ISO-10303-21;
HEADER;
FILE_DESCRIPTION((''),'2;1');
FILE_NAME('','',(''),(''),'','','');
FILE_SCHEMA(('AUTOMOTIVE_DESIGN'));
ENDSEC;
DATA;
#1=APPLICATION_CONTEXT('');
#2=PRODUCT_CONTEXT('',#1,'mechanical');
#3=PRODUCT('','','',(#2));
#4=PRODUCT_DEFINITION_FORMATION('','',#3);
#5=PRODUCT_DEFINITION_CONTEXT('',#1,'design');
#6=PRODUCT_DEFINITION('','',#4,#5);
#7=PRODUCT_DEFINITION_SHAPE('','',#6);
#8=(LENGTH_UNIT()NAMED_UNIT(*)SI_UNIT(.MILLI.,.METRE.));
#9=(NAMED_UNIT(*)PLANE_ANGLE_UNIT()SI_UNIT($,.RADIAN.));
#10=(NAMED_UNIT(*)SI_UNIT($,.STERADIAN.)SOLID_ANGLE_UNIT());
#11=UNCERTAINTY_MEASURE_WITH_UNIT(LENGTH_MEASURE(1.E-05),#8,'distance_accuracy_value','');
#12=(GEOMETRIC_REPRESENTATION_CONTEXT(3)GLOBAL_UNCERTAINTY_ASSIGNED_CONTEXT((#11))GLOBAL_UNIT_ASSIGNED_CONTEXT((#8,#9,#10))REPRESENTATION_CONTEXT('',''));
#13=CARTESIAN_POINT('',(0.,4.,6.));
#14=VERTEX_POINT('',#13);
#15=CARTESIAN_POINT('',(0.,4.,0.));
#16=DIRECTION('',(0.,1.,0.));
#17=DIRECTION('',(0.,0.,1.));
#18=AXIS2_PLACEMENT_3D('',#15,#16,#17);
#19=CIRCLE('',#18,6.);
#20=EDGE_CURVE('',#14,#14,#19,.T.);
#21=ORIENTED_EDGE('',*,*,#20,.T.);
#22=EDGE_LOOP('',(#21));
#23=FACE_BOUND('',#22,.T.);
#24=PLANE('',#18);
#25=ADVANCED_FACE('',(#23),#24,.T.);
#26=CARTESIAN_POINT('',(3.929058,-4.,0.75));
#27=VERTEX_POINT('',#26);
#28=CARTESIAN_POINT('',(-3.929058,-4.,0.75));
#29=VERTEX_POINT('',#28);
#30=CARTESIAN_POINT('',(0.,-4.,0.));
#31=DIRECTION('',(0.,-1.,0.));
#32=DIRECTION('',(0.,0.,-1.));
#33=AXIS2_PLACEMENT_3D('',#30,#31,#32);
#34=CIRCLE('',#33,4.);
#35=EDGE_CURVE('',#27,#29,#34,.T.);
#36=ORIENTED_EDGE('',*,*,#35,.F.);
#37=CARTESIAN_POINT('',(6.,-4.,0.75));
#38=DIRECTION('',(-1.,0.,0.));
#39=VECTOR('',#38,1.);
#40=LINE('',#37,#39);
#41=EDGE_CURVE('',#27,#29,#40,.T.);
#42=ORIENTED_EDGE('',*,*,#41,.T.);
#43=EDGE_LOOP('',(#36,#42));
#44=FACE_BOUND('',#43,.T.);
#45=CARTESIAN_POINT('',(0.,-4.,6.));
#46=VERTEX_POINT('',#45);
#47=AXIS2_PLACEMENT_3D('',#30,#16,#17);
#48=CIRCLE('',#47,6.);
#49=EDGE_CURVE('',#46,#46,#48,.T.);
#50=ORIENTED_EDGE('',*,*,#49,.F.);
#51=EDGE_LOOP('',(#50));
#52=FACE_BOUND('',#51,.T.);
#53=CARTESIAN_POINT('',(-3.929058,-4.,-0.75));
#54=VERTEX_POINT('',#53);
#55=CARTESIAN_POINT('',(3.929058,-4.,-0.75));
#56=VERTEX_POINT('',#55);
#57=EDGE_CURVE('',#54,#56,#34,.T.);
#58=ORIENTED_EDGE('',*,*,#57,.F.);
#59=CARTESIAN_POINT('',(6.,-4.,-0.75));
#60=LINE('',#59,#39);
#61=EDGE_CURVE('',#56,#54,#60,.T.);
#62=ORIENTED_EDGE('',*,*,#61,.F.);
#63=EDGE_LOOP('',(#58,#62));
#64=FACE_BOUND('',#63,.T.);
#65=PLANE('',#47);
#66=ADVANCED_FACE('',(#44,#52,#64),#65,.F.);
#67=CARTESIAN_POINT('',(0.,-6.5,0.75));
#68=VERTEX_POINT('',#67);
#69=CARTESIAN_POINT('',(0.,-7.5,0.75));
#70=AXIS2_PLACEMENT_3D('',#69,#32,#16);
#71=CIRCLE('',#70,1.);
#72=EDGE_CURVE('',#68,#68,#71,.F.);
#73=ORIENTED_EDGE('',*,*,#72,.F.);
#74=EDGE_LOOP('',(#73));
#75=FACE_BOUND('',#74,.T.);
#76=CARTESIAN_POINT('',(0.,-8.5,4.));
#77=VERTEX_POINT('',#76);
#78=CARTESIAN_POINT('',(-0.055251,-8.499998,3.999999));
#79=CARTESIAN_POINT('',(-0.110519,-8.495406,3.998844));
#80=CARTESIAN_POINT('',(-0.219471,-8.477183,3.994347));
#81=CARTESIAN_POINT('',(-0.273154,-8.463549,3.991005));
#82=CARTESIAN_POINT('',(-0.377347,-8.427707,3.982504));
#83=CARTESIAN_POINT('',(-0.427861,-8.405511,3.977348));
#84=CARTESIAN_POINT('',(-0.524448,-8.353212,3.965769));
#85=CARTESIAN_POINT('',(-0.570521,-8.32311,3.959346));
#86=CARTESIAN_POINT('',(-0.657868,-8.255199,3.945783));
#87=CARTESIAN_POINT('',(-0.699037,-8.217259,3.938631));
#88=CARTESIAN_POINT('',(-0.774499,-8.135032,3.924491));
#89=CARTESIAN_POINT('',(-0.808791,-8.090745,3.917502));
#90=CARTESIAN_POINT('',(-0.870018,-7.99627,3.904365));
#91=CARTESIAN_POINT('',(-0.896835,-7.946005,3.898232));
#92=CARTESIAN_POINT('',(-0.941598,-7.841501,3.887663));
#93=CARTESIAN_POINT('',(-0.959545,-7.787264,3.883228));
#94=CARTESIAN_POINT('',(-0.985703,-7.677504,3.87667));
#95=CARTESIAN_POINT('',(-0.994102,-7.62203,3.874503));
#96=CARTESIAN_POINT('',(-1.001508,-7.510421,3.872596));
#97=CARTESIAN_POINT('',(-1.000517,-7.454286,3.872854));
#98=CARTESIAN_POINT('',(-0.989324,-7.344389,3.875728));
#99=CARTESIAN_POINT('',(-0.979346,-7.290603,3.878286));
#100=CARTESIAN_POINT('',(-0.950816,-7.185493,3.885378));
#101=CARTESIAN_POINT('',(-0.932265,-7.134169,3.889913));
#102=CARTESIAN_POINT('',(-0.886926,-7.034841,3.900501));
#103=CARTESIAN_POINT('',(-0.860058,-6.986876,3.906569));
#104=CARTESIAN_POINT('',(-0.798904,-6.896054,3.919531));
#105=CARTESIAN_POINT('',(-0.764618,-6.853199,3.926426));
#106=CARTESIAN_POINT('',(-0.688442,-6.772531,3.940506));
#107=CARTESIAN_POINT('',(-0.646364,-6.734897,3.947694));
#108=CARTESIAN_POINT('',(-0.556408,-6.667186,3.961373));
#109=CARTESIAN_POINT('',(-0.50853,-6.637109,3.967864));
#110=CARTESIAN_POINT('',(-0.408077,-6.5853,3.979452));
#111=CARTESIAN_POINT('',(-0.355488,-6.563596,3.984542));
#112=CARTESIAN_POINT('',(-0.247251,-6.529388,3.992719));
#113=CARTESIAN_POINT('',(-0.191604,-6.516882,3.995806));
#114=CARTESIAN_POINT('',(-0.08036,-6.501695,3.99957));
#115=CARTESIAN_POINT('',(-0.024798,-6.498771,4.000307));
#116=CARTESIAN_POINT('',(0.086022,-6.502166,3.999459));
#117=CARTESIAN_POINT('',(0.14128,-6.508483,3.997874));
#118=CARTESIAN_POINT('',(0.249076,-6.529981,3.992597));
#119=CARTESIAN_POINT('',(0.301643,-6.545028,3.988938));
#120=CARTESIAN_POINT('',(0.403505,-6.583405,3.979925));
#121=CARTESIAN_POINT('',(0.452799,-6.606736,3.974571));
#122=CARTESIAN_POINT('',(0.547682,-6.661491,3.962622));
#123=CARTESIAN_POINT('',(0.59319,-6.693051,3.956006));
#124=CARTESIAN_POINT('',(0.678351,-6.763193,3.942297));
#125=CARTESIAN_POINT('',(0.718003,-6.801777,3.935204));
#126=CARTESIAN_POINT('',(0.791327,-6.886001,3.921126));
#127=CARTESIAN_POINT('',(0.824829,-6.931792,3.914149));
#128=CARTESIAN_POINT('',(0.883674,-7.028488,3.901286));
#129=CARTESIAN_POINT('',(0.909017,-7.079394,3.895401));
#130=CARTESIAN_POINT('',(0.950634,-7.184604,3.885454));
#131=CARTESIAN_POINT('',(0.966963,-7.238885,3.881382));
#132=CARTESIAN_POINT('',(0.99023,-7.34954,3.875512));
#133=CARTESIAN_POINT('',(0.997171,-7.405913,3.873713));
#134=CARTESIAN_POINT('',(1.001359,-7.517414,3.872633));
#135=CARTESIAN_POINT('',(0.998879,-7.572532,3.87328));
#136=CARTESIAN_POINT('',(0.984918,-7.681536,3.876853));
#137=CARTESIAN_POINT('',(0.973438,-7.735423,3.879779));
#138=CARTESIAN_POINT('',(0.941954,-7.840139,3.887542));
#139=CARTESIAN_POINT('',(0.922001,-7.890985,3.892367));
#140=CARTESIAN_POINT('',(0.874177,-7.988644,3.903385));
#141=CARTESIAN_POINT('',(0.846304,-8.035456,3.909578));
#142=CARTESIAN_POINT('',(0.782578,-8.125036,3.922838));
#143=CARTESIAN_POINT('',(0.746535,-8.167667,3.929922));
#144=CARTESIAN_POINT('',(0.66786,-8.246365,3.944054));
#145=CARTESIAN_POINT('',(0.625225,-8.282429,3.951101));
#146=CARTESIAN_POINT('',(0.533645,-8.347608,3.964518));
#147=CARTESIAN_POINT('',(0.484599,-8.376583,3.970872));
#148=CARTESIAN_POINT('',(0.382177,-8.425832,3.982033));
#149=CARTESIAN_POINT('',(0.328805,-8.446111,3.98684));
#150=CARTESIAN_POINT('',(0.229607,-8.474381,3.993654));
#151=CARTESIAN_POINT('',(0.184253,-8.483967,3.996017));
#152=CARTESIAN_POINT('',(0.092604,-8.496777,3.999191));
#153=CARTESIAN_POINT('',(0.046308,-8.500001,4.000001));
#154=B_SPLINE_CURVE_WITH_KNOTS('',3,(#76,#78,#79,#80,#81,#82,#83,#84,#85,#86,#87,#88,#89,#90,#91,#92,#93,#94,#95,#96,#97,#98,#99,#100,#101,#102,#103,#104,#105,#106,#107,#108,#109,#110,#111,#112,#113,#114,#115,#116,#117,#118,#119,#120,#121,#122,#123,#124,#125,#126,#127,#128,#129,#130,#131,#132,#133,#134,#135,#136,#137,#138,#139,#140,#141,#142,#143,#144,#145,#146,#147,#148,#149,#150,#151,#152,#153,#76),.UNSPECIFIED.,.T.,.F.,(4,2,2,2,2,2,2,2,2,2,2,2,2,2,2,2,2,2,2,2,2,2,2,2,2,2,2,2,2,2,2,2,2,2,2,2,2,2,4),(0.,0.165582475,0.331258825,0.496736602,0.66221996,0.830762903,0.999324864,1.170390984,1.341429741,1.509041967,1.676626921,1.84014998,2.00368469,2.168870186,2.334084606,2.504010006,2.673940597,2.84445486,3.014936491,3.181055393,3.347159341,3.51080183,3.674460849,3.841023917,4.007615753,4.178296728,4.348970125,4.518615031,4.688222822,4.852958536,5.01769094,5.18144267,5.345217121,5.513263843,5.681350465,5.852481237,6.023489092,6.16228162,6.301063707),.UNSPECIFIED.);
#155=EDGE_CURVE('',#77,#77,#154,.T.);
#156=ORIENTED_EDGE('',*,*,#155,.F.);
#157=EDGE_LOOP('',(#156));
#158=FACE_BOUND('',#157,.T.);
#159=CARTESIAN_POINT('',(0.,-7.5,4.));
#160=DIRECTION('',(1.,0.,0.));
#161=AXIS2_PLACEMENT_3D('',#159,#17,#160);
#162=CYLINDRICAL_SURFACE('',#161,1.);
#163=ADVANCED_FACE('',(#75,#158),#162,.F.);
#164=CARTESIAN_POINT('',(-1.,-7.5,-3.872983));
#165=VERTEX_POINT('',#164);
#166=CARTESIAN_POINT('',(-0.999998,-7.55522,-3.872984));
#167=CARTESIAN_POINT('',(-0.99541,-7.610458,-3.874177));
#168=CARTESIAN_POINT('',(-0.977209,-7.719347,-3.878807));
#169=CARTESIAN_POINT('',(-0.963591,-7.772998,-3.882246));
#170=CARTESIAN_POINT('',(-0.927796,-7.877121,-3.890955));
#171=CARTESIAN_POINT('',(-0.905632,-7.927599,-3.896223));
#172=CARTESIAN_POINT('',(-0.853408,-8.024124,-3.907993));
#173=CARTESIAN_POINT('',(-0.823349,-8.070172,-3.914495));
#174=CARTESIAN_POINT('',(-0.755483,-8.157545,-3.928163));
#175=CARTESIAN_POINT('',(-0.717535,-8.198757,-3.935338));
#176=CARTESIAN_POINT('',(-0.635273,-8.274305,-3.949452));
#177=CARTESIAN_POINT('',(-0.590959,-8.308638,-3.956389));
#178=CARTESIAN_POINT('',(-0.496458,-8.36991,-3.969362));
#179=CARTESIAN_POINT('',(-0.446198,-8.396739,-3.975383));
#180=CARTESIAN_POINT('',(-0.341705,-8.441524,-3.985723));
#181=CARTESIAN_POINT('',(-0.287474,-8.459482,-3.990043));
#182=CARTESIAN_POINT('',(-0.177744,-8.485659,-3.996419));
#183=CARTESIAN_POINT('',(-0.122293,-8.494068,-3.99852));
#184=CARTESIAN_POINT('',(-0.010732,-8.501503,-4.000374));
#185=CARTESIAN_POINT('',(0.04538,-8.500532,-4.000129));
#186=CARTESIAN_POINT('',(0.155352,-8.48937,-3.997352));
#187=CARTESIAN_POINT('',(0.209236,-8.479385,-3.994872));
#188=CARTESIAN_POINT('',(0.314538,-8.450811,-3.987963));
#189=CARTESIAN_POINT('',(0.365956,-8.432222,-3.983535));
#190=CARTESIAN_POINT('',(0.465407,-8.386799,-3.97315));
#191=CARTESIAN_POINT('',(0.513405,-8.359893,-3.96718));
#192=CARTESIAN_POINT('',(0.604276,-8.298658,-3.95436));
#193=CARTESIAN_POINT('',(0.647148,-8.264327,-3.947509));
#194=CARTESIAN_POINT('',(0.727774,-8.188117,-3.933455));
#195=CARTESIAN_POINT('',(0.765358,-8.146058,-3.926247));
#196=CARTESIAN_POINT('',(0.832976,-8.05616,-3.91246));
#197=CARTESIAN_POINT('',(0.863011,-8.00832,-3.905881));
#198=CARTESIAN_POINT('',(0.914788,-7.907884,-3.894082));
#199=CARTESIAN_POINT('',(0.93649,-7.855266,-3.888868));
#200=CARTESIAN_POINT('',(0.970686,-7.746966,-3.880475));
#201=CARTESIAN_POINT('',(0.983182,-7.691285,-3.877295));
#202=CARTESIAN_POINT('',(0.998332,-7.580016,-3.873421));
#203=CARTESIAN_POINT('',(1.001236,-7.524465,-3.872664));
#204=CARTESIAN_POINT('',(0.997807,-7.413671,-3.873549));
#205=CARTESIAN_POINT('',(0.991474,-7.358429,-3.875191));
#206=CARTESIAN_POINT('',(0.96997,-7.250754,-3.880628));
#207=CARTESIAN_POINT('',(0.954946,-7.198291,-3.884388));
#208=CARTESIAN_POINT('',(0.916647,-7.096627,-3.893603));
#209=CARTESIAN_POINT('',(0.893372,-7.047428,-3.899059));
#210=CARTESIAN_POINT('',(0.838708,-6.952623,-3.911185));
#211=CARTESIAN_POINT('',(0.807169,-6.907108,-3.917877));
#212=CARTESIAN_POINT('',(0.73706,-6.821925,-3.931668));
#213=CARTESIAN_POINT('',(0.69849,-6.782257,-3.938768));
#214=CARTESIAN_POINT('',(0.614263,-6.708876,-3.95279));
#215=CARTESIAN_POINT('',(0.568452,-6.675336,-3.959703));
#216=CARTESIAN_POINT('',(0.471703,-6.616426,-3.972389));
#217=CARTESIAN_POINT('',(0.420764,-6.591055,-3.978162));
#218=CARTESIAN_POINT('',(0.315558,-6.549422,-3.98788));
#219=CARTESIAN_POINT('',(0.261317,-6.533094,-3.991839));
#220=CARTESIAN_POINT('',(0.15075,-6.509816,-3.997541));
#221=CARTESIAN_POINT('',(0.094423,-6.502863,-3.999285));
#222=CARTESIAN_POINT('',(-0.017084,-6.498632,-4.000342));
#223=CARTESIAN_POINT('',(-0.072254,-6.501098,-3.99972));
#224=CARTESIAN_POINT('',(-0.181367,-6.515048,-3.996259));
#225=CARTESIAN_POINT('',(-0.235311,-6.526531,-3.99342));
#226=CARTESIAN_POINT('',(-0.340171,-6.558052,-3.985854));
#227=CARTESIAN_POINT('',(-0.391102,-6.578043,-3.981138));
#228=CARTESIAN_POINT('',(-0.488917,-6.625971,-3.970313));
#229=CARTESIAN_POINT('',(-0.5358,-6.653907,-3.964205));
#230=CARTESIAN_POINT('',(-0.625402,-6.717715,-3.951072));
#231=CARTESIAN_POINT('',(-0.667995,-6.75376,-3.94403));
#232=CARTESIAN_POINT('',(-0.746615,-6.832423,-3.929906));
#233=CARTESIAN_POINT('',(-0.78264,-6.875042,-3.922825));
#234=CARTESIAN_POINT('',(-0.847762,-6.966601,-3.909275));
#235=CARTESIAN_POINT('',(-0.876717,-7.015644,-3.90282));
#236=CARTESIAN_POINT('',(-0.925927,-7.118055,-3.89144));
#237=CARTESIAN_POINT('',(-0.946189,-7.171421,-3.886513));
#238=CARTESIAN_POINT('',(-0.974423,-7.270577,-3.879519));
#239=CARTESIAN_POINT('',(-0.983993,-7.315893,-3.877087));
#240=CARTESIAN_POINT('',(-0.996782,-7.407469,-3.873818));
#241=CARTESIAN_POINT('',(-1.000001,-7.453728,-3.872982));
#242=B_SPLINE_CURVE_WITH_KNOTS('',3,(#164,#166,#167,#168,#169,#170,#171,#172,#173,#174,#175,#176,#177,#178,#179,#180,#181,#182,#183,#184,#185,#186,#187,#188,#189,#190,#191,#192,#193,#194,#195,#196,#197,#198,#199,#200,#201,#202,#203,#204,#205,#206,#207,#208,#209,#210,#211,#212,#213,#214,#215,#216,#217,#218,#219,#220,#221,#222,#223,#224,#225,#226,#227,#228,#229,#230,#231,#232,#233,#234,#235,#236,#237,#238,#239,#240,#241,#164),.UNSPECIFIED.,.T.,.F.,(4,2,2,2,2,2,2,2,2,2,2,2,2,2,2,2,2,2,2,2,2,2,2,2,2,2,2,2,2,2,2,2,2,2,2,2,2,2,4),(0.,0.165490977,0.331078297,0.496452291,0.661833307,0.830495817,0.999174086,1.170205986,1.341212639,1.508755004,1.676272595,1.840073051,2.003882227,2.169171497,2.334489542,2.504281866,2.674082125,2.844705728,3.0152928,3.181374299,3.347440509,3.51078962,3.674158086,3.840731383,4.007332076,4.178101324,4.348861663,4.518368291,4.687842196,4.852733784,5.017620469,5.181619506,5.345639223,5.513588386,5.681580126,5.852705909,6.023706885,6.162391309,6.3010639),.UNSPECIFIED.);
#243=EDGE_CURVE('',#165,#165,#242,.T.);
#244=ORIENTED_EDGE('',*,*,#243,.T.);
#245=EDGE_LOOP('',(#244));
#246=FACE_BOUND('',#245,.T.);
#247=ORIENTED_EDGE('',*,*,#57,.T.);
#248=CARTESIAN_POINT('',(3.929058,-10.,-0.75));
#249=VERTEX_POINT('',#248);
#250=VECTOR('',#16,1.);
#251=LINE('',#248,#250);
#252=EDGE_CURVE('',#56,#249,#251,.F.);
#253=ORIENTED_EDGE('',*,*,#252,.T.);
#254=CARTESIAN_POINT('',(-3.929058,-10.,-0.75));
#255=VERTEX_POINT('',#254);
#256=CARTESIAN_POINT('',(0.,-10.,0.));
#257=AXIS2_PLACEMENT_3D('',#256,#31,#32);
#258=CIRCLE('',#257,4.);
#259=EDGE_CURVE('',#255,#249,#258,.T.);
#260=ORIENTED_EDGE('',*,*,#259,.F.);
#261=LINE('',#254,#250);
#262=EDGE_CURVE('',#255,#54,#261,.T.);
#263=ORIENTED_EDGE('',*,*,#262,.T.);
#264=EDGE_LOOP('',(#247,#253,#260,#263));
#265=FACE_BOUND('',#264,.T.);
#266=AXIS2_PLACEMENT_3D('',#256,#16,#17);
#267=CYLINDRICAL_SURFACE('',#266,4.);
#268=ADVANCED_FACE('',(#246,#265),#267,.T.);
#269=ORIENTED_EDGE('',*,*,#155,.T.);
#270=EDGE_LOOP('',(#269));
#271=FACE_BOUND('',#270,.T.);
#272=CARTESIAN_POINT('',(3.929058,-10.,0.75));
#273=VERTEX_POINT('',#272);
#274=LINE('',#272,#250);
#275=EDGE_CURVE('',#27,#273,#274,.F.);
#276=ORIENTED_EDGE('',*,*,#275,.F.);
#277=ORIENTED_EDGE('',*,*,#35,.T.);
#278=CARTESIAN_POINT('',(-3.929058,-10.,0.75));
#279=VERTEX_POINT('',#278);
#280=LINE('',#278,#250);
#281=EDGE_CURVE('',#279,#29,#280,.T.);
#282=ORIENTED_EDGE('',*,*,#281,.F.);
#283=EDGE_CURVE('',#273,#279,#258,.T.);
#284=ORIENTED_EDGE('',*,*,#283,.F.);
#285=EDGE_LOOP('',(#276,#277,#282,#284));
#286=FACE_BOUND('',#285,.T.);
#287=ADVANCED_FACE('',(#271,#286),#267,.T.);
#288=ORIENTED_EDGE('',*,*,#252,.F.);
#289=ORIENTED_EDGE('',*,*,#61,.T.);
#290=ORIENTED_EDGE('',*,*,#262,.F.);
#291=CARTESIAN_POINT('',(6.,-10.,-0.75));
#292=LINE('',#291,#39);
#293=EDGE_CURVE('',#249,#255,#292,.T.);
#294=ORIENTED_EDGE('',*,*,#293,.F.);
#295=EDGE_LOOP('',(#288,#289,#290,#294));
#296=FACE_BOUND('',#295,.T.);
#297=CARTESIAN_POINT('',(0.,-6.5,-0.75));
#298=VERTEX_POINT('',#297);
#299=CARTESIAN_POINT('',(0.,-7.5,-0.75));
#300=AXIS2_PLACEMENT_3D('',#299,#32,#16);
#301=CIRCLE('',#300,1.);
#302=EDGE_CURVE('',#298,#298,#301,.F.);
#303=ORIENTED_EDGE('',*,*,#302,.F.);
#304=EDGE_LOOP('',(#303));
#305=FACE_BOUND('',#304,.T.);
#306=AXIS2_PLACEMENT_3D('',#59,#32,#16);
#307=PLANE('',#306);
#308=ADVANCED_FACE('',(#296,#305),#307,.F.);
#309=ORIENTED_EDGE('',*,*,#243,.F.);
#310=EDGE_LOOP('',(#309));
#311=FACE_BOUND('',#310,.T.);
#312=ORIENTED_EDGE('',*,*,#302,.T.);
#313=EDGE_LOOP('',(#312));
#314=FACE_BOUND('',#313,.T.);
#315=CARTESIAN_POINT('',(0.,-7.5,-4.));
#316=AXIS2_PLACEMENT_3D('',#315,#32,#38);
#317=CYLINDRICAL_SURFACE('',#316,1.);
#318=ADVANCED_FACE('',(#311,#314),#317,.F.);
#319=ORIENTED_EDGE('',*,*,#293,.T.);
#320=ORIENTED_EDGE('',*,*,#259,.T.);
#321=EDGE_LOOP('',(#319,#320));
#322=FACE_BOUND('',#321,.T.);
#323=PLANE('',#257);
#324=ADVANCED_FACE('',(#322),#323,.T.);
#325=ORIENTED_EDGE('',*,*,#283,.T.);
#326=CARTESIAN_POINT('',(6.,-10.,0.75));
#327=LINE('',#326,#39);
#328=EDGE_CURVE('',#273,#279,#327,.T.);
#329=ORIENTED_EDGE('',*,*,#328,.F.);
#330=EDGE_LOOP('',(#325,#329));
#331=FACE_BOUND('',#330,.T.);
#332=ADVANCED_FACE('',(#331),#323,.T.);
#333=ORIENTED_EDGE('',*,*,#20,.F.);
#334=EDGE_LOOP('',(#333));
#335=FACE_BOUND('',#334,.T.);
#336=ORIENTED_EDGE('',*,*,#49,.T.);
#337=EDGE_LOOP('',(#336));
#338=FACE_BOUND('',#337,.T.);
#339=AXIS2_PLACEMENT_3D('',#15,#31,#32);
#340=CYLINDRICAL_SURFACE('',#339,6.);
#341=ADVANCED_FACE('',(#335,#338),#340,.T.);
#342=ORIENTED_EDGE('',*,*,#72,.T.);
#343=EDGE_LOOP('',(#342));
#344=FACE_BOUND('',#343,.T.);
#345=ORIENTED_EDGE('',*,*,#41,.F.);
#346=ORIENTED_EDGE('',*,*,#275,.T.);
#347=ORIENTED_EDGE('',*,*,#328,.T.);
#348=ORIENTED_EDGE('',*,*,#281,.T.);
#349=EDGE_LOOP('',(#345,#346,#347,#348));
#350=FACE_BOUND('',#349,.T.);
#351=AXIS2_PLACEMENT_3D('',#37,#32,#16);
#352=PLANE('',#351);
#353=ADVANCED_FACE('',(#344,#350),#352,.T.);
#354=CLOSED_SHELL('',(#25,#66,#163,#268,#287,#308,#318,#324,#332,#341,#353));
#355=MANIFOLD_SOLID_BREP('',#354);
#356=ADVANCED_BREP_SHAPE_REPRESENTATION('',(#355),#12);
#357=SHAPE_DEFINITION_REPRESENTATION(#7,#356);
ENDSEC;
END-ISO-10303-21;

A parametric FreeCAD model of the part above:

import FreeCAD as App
import Part
import Sketcher

doc = App.newDocument("Part")
params = doc.addObject("Spreadsheet::Sheet", "Params")
for row, (alias, value) in enumerate([
    ("sketch1_diameter", "12 mm"),
    ("pad1_length", "8 mm"),
    ("sketch2_diameter", "8 mm"),
    ("pad2_length", "6 mm"),
    ("sketch3_diameter", "2 mm"),
    ("hole_diameter", "2 mm"),
    ("hole_depth", "3.25 mm"),
    ("sketch4_diameter", "2 mm"),
    ("hole2_diameter", "2 mm"),
    ("hole2_depth", "3.25 mm"),
    ("sketch5_width", "6 mm"),
    ("sketch5_height", "1.5 mm"),
], start=1):
    params.set(f"A{row}", alias)
    params.set(f"B{row}", "=" + value)
    params.setAlias(f"B{row}", alias)

body = doc.addObject("PartDesign::Body", "Body")

# Sketch on XZ plane
sketch1 = body.newObject("Sketcher::SketchObject", "Sketch")
sketch1.AttachmentSupport = (doc.getObject("XZ_Plane"), [""])
sketch1.MapMode = "FlatFace"
sketch1.addGeometry(Part.Circle(App.Vector(0, 0, 0), App.Vector(0, 0, 1), 6), False)
sketch1.addConstraint([
    Sketcher.Constraint("Coincident", 0, 3, -1, 1),
    Sketcher.Constraint("Diameter", 0, 12.0),
])
sketch1.setExpression("Constraints[1]", "Params.sketch1_diameter")
pad1 = body.newObject("PartDesign::Pad", "Pad")
pad1.Profile = sketch1
pad1.setExpression("Length", "Params.pad1_length")
pad1.Midplane = True

# Sketch on XZ plane
sketch2 = body.newObject("Sketcher::SketchObject", "Sketch001")
sketch2.AttachmentSupport = (doc.getObject("XZ_Plane"), [""])
sketch2.MapMode = "FlatFace"
sketch2.AttachmentOffset = App.Placement(App.Vector(0, 0, 4), App.Rotation())
sketch2.addGeometry(Part.Circle(App.Vector(0, 0, 0), App.Vector(0, 0, 1), 4), False)
sketch2.addConstraint([
    Sketcher.Constraint("Coincident", 0, 3, -1, 1),
    Sketcher.Constraint("Diameter", 0, 8.0),
])
sketch2.setExpression("Constraints[1]", "Params.sketch2_diameter")
pad2 = body.newObject("PartDesign::Pad", "Pad001")
pad2.Profile = sketch2
pad2.setExpression("Length", "Params.pad2_length")

# Sketch on XY plane
sketch3 = body.newObject("Sketcher::SketchObject", "Sketch002")
sketch3.AttachmentSupport = (doc.getObject("XY_Plane"), [""])
sketch3.MapMode = "FlatFace"
sketch3.AttachmentOffset = App.Placement(App.Vector(0, 0, 4), App.Rotation())
sketch3.addGeometry(Part.Circle(App.Vector(0, -7.5, 0), App.Vector(0, 0, 1), 1), False)
sketch3.addConstraint([
    Sketcher.Constraint("PointOnObject", 0, 3, -2),
    Sketcher.Constraint("Diameter", 0, 2.0),
    Sketcher.Constraint("DistanceY", 0, 3, -1, 1, 7.5),
])
sketch3.setExpression("Constraints[1]", "Params.sketch3_diameter")
doc.recompute()
hole = body.newObject("PartDesign::Hole", "Hole")
hole.Profile = sketch3
hole.ThreadType = "None"
hole.setExpression("Diameter", "Params.hole_diameter")
hole.DepthType = "Dimension"
hole.setExpression("Depth", "Params.hole_depth")
hole.DrillPoint = "Angled"
hole.DrillPointAngle = 118

# Sketch on XY plane
sketch4 = body.newObject("Sketcher::SketchObject", "Sketch003")
sketch4.AttachmentSupport = (doc.getObject("XY_Plane"), [""])
sketch4.MapMode = "FlatFace"
sketch4.AttachmentOffset = App.Placement(App.Vector(0, 0, -4), App.Rotation())
sketch4.addGeometry(Part.Circle(App.Vector(0, -7.5, 0), App.Vector(0, 0, 1), 1), False)
sketch4.addConstraint([
    Sketcher.Constraint("PointOnObject", 0, 3, -2),
    Sketcher.Constraint("Diameter", 0, 2.0),
    Sketcher.Constraint("DistanceY", 0, 3, -1, 1, 7.5),
])
sketch4.setExpression("Constraints[1]", "Params.sketch4_diameter")
doc.recompute()
hole2 = body.newObject("PartDesign::Hole", "Hole001")
hole2.Profile = sketch4
hole2.ThreadType = "None"
hole2.setExpression("Diameter", "Params.hole2_diameter")
hole2.DepthType = "Dimension"
hole2.setExpression("Depth", "Params.hole2_depth")
hole2.DrillPoint = "Angled"
hole2.DrillPointAngle = 118
hole2.Reversed = True

# Sketch on YZ plane
sketch5 = body.newObject("Sketcher::SketchObject", "Sketch004")
sketch5.AttachmentSupport = (doc.getObject("YZ_Plane"), [""])
sketch5.MapMode = "FlatFace"
sketch5.addGeometry([
    Part.LineSegment(App.Vector(-4, 0.75, 0), App.Vector(-10, 0.75, 0)),
    Part.LineSegment(App.Vector(-10, 0.75, 0), App.Vector(-10, -0.75, 0)),
    Part.LineSegment(App.Vector(-10, -0.75, 0), App.Vector(-4, -0.75, 0)),
    Part.LineSegment(App.Vector(-4, -0.75, 0), App.Vector(-4, 0.75, 0)),
], False)
sketch5.addConstraint([
    Sketcher.Constraint("Coincident", 0, 2, 1, 1),
    Sketcher.Constraint("Coincident", 1, 2, 2, 1),
    Sketcher.Constraint("Coincident", 2, 2, 3, 1),
    Sketcher.Constraint("Coincident", 3, 2, 0, 1),
    Sketcher.Constraint("Horizontal", 0),
    Sketcher.Constraint("Vertical", 1),
    Sketcher.Constraint("Horizontal", 2),
    Sketcher.Constraint("Vertical", 3),
    Sketcher.Constraint("DistanceX", 0, 2, 0, 1, 6.0),
    Sketcher.Constraint("DistanceY", 1, 2, 1, 1, 1.5),
    Sketcher.Constraint("DistanceX", 0, 2, -1, 1, 10.0),
    Sketcher.Constraint("DistanceY", -1, 1, 0, 2, 0.75),
])
sketch5.setExpression("Constraints[8]", "Params.sketch5_width")
sketch5.setExpression("Constraints[9]", "Params.sketch5_height")
pocket1 = body.newObject("PartDesign::Pocket", "Pocket")
pocket1.Profile = sketch5
pocket1.Type = "ThroughAll"
pocket1.Midplane = True

doc.recompute()
